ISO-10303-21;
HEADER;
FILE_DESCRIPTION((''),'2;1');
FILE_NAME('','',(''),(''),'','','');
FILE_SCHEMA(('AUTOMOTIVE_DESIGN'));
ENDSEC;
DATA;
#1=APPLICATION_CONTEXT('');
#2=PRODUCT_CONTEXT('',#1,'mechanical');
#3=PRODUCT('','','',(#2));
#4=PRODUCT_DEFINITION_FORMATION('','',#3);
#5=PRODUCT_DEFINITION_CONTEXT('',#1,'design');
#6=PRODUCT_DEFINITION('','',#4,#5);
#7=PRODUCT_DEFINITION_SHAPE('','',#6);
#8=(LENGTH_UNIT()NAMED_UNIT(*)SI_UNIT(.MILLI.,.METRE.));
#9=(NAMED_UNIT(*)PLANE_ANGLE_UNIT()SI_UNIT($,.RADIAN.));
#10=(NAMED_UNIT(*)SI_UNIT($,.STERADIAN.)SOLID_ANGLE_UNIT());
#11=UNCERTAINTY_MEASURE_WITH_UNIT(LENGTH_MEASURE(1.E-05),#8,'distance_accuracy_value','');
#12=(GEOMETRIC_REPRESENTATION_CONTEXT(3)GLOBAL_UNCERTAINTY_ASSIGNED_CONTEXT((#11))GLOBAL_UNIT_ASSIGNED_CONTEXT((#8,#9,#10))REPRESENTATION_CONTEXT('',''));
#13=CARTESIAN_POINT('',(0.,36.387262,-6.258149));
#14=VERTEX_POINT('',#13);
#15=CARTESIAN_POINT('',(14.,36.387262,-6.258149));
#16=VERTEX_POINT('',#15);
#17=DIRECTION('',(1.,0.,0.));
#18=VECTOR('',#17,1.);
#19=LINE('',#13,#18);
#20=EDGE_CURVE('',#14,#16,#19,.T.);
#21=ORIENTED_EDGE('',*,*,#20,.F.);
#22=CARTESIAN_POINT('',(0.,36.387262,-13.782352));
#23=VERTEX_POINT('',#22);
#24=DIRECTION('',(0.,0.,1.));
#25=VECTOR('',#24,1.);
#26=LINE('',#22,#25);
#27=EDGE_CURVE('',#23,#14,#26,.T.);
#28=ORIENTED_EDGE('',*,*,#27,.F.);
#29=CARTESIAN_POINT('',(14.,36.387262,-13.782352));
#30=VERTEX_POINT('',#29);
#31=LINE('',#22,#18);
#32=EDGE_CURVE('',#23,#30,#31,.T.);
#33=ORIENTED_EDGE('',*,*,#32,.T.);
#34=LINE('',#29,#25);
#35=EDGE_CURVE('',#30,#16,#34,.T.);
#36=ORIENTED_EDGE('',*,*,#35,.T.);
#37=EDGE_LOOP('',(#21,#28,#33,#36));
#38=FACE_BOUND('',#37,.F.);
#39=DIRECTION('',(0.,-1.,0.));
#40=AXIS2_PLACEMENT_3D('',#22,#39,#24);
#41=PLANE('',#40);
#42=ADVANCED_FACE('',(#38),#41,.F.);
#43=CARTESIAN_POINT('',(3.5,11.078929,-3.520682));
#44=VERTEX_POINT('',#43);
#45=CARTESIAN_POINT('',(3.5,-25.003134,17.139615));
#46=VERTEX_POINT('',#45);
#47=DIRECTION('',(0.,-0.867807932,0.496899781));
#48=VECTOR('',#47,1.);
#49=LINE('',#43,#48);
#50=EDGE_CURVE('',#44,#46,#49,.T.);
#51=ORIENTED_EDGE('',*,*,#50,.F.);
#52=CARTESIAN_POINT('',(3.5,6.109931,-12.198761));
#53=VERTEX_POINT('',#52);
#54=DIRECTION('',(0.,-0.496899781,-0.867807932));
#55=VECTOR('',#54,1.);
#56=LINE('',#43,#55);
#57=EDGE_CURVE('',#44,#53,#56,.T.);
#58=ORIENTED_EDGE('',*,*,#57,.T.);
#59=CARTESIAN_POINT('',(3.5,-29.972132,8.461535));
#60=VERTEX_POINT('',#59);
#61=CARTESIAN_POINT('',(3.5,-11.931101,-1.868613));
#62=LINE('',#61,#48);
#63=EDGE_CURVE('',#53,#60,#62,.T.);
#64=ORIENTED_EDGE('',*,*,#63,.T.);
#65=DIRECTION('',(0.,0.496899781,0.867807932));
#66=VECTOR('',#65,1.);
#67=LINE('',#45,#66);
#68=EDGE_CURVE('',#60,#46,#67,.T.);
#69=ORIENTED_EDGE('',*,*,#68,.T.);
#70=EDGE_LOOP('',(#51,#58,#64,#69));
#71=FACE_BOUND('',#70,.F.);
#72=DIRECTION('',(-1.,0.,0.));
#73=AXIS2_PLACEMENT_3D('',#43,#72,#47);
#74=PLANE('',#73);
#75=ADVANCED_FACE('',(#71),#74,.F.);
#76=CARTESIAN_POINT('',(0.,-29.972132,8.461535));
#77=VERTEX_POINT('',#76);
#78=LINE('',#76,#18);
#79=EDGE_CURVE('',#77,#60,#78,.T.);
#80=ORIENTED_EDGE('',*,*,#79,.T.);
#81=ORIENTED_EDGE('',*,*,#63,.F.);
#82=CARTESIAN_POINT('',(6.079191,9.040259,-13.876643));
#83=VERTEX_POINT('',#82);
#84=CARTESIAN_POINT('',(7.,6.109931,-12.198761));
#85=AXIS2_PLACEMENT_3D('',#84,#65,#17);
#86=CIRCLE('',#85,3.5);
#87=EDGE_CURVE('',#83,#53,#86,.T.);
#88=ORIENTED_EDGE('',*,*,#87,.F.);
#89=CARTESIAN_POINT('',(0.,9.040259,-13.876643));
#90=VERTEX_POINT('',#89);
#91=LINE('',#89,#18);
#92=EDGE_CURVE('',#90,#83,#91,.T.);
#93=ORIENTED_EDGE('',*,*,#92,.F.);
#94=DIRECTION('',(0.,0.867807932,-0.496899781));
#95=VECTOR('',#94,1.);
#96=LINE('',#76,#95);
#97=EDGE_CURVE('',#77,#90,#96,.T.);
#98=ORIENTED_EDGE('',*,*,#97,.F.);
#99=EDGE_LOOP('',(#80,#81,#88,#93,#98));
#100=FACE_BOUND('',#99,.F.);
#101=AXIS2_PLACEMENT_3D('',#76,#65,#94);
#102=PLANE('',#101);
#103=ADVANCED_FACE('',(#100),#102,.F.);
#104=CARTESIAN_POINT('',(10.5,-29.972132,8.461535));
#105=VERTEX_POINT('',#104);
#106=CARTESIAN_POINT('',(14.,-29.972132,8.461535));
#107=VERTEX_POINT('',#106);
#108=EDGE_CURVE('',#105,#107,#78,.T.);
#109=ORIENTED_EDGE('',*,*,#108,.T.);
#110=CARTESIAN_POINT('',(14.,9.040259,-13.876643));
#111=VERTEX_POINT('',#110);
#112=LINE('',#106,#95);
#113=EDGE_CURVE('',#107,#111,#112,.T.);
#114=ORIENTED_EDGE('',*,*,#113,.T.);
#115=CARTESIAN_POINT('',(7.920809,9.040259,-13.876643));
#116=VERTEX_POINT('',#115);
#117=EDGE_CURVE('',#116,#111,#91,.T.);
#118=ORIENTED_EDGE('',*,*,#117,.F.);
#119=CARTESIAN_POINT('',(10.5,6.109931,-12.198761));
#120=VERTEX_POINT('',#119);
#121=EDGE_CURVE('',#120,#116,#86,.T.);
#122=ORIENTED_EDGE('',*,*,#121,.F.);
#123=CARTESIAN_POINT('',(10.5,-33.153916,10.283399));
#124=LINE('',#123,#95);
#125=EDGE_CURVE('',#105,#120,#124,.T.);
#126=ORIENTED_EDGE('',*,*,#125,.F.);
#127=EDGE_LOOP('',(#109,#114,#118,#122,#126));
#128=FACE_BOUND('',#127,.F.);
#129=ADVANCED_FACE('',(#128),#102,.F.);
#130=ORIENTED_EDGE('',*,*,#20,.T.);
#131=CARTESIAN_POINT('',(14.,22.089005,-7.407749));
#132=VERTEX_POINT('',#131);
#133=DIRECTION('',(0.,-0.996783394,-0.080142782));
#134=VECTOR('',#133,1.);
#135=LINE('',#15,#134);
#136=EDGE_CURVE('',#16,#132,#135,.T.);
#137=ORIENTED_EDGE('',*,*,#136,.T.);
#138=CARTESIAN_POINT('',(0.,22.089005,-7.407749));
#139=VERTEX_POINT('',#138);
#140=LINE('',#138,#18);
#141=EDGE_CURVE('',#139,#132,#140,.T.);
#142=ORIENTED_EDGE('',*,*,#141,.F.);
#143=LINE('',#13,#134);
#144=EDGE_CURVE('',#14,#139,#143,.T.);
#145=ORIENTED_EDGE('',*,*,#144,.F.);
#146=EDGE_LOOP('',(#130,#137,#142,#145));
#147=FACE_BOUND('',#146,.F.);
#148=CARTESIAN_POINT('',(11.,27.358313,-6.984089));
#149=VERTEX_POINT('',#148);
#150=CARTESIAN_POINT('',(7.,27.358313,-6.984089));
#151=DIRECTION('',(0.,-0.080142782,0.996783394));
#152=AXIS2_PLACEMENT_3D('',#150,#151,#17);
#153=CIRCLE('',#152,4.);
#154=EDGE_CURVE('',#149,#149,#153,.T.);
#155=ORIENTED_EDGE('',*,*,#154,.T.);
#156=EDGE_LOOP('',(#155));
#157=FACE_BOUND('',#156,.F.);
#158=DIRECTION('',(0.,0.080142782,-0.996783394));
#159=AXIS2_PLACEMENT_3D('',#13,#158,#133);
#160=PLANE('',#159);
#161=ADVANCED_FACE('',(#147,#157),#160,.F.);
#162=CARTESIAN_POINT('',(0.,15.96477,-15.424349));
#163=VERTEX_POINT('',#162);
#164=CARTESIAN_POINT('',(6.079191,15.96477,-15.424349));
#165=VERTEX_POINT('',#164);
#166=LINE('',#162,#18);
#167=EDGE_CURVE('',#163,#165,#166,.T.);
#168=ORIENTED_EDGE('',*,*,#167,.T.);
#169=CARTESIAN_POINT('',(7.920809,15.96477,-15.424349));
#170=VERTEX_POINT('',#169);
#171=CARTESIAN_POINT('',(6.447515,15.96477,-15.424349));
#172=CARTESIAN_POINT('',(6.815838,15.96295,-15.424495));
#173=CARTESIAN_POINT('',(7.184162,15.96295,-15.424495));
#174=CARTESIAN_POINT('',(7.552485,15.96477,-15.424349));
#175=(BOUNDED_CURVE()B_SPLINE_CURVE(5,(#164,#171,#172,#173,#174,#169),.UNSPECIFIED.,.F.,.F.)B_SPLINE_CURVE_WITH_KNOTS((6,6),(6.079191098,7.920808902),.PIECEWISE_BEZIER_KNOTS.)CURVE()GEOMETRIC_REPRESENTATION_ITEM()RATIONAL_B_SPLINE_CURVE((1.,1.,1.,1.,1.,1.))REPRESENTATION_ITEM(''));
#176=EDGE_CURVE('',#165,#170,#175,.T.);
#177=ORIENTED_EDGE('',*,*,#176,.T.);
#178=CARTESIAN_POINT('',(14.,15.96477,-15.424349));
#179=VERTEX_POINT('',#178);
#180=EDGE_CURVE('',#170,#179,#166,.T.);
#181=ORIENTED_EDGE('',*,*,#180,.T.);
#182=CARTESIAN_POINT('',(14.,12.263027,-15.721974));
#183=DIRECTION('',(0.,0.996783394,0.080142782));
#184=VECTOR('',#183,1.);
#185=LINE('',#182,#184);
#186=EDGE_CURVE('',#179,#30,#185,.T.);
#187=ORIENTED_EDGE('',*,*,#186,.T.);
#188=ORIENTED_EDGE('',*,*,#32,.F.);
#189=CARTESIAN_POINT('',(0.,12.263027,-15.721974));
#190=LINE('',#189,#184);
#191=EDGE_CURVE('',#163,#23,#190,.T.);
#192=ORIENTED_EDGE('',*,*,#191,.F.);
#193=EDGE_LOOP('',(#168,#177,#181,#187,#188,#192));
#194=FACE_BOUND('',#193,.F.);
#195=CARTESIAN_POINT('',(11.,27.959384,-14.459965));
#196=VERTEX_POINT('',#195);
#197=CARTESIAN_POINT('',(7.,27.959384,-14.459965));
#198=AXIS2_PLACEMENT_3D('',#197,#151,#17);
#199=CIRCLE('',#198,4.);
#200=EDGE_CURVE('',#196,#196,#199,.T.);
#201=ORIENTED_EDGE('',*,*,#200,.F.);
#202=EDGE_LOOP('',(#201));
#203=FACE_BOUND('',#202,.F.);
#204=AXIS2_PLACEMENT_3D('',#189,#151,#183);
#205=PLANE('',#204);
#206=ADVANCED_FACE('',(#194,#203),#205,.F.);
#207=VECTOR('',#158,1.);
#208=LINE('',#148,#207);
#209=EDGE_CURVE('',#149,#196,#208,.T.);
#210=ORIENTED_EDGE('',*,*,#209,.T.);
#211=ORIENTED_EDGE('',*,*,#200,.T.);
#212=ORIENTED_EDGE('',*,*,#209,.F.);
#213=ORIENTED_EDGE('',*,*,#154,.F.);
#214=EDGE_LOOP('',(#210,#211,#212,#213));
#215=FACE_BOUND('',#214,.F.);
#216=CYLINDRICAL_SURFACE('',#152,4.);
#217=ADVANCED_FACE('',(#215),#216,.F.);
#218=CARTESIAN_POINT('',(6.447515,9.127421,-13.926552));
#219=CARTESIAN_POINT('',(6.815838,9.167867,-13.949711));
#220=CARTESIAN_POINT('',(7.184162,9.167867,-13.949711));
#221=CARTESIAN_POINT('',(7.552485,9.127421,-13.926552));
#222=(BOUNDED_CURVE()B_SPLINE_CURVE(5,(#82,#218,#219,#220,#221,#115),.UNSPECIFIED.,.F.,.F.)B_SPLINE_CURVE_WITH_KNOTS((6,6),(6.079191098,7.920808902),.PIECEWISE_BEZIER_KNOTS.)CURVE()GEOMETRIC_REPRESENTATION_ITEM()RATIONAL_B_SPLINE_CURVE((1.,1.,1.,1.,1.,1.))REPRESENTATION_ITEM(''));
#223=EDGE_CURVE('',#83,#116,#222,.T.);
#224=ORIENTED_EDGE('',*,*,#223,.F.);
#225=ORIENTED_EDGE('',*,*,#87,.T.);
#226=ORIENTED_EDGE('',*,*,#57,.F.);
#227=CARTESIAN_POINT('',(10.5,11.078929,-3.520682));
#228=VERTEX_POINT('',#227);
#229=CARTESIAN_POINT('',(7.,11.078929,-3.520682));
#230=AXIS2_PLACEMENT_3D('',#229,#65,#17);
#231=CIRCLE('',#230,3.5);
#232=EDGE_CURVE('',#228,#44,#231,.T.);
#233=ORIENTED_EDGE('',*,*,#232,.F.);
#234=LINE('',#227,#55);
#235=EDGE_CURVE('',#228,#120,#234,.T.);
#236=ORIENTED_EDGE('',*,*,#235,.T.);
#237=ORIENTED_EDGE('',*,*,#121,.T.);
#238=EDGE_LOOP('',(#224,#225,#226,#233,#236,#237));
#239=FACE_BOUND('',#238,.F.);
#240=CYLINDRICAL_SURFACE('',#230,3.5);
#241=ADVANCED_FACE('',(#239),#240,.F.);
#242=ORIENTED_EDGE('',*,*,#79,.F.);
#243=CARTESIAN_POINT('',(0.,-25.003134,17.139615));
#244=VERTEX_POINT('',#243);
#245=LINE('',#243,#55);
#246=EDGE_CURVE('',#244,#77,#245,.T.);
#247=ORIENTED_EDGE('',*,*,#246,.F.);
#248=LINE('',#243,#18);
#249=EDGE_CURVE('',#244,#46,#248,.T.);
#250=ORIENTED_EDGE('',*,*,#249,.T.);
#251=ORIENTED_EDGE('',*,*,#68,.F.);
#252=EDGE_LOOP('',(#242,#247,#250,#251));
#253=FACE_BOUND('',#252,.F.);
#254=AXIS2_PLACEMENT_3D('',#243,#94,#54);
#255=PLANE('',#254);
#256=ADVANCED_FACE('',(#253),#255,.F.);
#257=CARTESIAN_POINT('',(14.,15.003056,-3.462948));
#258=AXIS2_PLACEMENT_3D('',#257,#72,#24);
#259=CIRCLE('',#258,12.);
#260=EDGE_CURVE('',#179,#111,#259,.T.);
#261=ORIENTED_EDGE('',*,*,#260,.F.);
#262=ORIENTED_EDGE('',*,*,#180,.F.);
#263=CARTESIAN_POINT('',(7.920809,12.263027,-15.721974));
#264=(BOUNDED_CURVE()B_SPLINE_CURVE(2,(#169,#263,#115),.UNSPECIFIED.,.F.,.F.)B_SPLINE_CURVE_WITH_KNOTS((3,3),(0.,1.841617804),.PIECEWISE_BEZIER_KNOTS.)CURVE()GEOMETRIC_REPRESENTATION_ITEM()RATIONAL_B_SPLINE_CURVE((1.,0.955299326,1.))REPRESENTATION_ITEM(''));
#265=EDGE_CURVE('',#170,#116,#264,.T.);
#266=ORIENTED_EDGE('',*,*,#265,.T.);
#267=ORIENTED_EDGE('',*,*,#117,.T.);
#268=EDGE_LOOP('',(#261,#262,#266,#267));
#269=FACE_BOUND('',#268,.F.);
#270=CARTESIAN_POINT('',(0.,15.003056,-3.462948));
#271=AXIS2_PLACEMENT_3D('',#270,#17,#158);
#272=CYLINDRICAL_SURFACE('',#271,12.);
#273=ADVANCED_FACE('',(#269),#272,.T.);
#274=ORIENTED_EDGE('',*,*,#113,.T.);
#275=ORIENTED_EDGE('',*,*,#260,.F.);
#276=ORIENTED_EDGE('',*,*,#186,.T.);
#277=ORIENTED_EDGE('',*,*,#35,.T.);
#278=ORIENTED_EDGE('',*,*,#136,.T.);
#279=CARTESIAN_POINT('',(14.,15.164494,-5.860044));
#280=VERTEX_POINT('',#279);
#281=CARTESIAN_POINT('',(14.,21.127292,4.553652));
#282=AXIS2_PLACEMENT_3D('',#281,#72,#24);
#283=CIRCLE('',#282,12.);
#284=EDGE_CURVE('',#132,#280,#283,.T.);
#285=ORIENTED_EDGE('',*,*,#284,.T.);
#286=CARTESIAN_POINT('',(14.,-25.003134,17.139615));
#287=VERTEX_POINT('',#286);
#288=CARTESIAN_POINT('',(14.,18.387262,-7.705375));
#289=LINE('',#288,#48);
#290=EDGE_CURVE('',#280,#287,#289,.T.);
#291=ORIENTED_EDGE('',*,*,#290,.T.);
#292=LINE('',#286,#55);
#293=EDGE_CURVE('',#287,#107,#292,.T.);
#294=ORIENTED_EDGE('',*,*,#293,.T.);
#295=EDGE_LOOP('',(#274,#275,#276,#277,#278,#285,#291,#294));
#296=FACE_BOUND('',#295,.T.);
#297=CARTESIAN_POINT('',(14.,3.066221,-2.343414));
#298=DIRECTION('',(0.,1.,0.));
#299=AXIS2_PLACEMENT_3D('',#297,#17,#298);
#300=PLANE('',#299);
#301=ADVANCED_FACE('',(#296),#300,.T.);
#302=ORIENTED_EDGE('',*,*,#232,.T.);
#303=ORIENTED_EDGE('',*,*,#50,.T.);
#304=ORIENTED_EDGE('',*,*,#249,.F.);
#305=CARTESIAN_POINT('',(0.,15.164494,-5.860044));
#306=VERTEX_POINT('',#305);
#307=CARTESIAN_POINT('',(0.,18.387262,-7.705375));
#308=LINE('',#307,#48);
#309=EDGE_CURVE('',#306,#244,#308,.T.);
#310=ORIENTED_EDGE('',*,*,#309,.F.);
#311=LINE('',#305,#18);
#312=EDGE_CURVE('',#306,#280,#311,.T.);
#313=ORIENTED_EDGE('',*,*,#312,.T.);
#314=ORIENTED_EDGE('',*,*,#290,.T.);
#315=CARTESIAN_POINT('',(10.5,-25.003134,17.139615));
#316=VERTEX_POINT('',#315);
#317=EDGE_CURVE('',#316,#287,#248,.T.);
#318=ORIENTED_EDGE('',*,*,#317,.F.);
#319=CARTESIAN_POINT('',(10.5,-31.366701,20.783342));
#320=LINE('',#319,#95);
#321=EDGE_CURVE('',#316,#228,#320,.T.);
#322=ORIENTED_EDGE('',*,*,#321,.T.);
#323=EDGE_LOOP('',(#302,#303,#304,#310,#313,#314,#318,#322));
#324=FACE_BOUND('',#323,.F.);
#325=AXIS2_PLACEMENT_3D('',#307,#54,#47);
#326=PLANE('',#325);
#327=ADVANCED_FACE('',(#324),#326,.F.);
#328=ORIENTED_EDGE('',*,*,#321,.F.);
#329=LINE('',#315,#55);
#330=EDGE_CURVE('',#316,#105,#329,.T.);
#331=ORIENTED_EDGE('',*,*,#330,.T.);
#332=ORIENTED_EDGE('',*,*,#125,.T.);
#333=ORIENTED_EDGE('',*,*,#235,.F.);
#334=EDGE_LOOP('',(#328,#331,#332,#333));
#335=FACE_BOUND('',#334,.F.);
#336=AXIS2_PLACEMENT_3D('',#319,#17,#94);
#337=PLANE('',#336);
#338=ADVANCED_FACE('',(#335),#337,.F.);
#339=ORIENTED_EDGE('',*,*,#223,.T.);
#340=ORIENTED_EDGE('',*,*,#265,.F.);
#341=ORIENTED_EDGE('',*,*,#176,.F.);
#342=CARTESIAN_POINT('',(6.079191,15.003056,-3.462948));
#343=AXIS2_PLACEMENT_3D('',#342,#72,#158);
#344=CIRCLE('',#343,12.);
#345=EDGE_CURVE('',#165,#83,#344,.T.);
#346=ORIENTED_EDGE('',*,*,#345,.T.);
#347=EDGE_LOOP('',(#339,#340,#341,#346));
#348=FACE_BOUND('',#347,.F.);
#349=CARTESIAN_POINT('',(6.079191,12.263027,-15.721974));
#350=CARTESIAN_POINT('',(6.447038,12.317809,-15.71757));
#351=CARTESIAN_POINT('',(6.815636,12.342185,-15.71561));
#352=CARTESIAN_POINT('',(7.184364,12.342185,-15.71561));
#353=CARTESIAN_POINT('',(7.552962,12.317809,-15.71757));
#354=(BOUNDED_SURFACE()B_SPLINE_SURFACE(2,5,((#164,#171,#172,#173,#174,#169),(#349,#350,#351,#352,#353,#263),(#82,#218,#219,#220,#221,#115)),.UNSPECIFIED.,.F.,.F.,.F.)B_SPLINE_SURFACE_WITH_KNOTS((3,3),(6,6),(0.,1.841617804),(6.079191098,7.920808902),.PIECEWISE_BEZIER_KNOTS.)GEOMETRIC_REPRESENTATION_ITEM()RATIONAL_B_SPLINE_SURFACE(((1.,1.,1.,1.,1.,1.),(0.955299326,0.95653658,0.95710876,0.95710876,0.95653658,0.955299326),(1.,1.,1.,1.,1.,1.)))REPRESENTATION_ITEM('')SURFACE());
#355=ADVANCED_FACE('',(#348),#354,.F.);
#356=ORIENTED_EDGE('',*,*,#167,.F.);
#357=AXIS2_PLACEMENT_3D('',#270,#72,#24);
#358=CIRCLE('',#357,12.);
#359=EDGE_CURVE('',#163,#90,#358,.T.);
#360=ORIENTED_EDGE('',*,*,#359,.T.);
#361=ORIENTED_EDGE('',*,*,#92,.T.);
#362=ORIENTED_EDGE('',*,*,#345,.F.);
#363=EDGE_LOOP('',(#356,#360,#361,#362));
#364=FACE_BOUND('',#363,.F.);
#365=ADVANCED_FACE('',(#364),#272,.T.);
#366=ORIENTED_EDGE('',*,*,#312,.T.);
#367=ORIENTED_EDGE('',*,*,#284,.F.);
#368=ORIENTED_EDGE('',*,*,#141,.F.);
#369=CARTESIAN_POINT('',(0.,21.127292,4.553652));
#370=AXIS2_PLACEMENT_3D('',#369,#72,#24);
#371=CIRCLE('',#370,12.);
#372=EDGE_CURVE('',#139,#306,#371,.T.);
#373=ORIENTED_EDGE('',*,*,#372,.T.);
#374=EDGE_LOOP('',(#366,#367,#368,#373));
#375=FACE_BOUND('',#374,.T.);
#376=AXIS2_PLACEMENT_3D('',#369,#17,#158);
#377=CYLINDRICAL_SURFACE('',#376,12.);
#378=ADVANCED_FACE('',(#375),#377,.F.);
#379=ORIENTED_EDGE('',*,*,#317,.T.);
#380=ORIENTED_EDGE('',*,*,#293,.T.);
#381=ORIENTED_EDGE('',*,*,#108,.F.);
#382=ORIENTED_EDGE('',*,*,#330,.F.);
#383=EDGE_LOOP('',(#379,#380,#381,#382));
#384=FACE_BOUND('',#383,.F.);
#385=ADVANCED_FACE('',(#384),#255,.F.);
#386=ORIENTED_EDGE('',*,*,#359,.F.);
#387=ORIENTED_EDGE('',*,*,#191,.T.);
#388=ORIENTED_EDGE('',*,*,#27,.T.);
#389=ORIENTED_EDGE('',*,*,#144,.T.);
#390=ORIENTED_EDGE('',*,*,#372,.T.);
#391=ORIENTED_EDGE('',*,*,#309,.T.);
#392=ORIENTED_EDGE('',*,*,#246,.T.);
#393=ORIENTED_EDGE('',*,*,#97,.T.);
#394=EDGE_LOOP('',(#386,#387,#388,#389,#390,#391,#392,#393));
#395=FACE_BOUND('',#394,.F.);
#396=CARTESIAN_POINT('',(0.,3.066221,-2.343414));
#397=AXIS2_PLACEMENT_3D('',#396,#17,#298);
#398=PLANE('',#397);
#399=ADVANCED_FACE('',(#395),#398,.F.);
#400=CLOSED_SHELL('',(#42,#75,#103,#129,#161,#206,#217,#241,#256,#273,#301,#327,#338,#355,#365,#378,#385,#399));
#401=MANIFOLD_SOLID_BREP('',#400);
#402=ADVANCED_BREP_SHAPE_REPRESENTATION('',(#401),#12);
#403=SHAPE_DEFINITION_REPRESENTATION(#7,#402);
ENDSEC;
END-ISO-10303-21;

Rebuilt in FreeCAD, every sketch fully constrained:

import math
import FreeCAD as App
import Part
import Sketcher
from FreeCAD import Vector
Q = App.Units.Quantity


def edges_at(feature, points):
    """Names of the edges that pass closest to the given points."""
    edges = feature.Shape.Edges
    near = lambda p: min(range(len(edges)), key=lambda i: edges[i].distToShape(Part.Vertex(*p))[0])
    return sorted({f"Edge{near(p) + 1}" for p in points})


def add_polygon(sketch, points):
    """Adds a closed chain of lines whose ends are joined by coincident constraints."""
    first, n = sketch.GeometryCount, len(points)
    for a, b in zip(points, points[1:] + points[:1]):
        sketch.addGeometry(Part.LineSegment(App.Vector(*a, 0), App.Vector(*b, 0)), False)
    for i in range(n):
        sketch.addConstraint(Sketcher.Constraint("Coincident", first + i, 2, first + (i + 1) % n, 1))

doc = App.newDocument("Part")
body = doc.addObject("PartDesign::Body", "Body")

# Sketch on YZ plane
sketch1 = body.newObject("Sketcher::SketchObject", "Sketch")
sketch1.AttachmentSupport = (doc.getObject("YZ_Plane"), [""])
sketch1.MapMode = "FlatFace"
add_polygon(sketch1, [(36, -14), (36, -6), (18, -8), (-25, 17), (-30, 8), (12, -16)])  # lines 0-5
sketch1.addConstraint(Sketcher.Constraint("Vertical", 0))
sketch1.addConstraint(Sketcher.Constraint("Perpendicular", 2, 3))
sketch1.addConstraint(Sketcher.Constraint("Perpendicular", 3, 4))
sketch1.addConstraint(Sketcher.Constraint("Parallel", 1, 5))
sketch1.addConstraint(Sketcher.Constraint("Distance", 2, Q("50 mm")))
sketch1.addConstraint(Sketcher.Constraint("Distance", 3, Q("10 mm")))
sketch1.addConstraint(Sketcher.Constraint("DistanceX", 1, 2, 0, 2, Q("18 mm")))
sketch1.addConstraint(Sketcher.Constraint("DistanceY", 4, 2, 1, 2, Q("8.0166 mm")))
sketch1.addConstraint(Sketcher.Constraint("DistanceY", 0, 1, 0, 2, Q("7.524202 mm")))
sketch1.addConstraint(Sketcher.Constraint("DistanceY", 0, 2, -1, 1, Q("6.258149 mm")))
sketch1.addConstraint(Sketcher.Constraint("DistanceX", 3, 2, -1, 1, Q("29.972132 mm")))
sketch1.addConstraint(Sketcher.Constraint("DistanceY", 1, 2, 2, 2, Q("24.844989 mm")))
pad1 = body.newObject("PartDesign::Pad", "Pad")
pad1.Profile = sketch1
pad1.Length = 14

# Sketch on an angled plane
sketch2 = body.newObject("Sketcher::SketchObject", "Sketch001")
sketch2.Placement = App.Placement(Vector(0, 0.733643, -9.12475), App.Rotation(Vector(1, 0, 0), Vector(0, 0.996783394, 0.080142782), Vector(0, -0.080142782, 0.996783394), "ZXY"))
sketch2.addGeometry(Part.Circle(Vector(7, 26.7, 0), Vector(0, 0, 1), 4), False)
sketch2.addConstraint(Sketcher.Constraint("Diameter", 0, Q("8 mm")))
sketch2.addConstraint(Sketcher.Constraint("DistanceX", -1, 1, 0, 3, Q("7 mm")))
sketch2.addConstraint(Sketcher.Constraint("DistanceY", -1, 1, 0, 3, Q("26.710588 mm")))
pocket1 = body.newObject("PartDesign::Pocket", "Pocket")
pocket1.Profile = sketch2
pocket1.Length = 25

# Sketch on an angled plane
sketch3 = body.newObject("Sketcher::SketchObject", "Sketch002")
sketch3.Placement = App.Placement(Vector(0, 1.217326, 2.125992), App.Rotation(Vector(1, 0, 0), Vector(0, 0.867807932, -0.496899781), Vector(0, 0.496899781, 0.867807932), "ZXY"))
sketch3.addGeometry(Part.ArcOfCircle(Part.Circle(Vector(7, -37.5, 0), Vector(0, 0, 1), 3.5), math.radians(180), math.radians(360)), False)
sketch3.addGeometry(Part.LineSegment(Vector(10.5, -37.5, 0), Vector(10.5, 11.4, 0)), False)
sketch3.addGeometry(Part.ArcOfCircle(Part.Circle(Vector(7, 11.4, 0), Vector(0, 0, 1), 3.5), math.radians(0), math.radians(180)), False)
sketch3.addGeometry(Part.LineSegment(Vector(3.5, 11.4, 0), Vector(3.5, -37.5, 0)), False)
sketch3.addConstraint(Sketcher.Constraint("Tangent", 0, 2, 1, 1))
sketch3.addConstraint(Sketcher.Constraint("Tangent", 1, 2, 2, 1))
sketch3.addConstraint(Sketcher.Constraint("Tangent", 2, 2, 3, 1))
sketch3.addConstraint(Sketcher.Constraint("Tangent", 3, 2, 0, 1))
sketch3.addConstraint(Sketcher.Constraint("Vertical", 1))
sketch3.addConstraint(Sketcher.Constraint("Vertical", 3))
sketch3.addConstraint(Sketcher.Constraint("Radius", 0, Q("3.5 mm")))
sketch3.addConstraint(Sketcher.Constraint("DistanceX", -1, 1, 0, 3, Q("7 mm")))
sketch3.addConstraint(Sketcher.Constraint("DistanceY", 1, 1, 1, 2, Q("48.911318 mm")))
sketch3.addConstraint(Sketcher.Constraint("DistanceY", 0, 3, -1, 1, Q("37.54751 mm")))
pocket2 = body.newObject("PartDesign::Pocket", "Pocket001")
pocket2.Profile = sketch3
pocket2.Length = 25
doc.recompute()

fillet = body.newObject("PartDesign::Fillet", "Fillet")
fillet.Base = (pocket2, edges_at(pocket2, [(7, 18.387, -7.705), (7, 12.263, -15.722)]))
fillet.Radius = 12

doc.recompute()
